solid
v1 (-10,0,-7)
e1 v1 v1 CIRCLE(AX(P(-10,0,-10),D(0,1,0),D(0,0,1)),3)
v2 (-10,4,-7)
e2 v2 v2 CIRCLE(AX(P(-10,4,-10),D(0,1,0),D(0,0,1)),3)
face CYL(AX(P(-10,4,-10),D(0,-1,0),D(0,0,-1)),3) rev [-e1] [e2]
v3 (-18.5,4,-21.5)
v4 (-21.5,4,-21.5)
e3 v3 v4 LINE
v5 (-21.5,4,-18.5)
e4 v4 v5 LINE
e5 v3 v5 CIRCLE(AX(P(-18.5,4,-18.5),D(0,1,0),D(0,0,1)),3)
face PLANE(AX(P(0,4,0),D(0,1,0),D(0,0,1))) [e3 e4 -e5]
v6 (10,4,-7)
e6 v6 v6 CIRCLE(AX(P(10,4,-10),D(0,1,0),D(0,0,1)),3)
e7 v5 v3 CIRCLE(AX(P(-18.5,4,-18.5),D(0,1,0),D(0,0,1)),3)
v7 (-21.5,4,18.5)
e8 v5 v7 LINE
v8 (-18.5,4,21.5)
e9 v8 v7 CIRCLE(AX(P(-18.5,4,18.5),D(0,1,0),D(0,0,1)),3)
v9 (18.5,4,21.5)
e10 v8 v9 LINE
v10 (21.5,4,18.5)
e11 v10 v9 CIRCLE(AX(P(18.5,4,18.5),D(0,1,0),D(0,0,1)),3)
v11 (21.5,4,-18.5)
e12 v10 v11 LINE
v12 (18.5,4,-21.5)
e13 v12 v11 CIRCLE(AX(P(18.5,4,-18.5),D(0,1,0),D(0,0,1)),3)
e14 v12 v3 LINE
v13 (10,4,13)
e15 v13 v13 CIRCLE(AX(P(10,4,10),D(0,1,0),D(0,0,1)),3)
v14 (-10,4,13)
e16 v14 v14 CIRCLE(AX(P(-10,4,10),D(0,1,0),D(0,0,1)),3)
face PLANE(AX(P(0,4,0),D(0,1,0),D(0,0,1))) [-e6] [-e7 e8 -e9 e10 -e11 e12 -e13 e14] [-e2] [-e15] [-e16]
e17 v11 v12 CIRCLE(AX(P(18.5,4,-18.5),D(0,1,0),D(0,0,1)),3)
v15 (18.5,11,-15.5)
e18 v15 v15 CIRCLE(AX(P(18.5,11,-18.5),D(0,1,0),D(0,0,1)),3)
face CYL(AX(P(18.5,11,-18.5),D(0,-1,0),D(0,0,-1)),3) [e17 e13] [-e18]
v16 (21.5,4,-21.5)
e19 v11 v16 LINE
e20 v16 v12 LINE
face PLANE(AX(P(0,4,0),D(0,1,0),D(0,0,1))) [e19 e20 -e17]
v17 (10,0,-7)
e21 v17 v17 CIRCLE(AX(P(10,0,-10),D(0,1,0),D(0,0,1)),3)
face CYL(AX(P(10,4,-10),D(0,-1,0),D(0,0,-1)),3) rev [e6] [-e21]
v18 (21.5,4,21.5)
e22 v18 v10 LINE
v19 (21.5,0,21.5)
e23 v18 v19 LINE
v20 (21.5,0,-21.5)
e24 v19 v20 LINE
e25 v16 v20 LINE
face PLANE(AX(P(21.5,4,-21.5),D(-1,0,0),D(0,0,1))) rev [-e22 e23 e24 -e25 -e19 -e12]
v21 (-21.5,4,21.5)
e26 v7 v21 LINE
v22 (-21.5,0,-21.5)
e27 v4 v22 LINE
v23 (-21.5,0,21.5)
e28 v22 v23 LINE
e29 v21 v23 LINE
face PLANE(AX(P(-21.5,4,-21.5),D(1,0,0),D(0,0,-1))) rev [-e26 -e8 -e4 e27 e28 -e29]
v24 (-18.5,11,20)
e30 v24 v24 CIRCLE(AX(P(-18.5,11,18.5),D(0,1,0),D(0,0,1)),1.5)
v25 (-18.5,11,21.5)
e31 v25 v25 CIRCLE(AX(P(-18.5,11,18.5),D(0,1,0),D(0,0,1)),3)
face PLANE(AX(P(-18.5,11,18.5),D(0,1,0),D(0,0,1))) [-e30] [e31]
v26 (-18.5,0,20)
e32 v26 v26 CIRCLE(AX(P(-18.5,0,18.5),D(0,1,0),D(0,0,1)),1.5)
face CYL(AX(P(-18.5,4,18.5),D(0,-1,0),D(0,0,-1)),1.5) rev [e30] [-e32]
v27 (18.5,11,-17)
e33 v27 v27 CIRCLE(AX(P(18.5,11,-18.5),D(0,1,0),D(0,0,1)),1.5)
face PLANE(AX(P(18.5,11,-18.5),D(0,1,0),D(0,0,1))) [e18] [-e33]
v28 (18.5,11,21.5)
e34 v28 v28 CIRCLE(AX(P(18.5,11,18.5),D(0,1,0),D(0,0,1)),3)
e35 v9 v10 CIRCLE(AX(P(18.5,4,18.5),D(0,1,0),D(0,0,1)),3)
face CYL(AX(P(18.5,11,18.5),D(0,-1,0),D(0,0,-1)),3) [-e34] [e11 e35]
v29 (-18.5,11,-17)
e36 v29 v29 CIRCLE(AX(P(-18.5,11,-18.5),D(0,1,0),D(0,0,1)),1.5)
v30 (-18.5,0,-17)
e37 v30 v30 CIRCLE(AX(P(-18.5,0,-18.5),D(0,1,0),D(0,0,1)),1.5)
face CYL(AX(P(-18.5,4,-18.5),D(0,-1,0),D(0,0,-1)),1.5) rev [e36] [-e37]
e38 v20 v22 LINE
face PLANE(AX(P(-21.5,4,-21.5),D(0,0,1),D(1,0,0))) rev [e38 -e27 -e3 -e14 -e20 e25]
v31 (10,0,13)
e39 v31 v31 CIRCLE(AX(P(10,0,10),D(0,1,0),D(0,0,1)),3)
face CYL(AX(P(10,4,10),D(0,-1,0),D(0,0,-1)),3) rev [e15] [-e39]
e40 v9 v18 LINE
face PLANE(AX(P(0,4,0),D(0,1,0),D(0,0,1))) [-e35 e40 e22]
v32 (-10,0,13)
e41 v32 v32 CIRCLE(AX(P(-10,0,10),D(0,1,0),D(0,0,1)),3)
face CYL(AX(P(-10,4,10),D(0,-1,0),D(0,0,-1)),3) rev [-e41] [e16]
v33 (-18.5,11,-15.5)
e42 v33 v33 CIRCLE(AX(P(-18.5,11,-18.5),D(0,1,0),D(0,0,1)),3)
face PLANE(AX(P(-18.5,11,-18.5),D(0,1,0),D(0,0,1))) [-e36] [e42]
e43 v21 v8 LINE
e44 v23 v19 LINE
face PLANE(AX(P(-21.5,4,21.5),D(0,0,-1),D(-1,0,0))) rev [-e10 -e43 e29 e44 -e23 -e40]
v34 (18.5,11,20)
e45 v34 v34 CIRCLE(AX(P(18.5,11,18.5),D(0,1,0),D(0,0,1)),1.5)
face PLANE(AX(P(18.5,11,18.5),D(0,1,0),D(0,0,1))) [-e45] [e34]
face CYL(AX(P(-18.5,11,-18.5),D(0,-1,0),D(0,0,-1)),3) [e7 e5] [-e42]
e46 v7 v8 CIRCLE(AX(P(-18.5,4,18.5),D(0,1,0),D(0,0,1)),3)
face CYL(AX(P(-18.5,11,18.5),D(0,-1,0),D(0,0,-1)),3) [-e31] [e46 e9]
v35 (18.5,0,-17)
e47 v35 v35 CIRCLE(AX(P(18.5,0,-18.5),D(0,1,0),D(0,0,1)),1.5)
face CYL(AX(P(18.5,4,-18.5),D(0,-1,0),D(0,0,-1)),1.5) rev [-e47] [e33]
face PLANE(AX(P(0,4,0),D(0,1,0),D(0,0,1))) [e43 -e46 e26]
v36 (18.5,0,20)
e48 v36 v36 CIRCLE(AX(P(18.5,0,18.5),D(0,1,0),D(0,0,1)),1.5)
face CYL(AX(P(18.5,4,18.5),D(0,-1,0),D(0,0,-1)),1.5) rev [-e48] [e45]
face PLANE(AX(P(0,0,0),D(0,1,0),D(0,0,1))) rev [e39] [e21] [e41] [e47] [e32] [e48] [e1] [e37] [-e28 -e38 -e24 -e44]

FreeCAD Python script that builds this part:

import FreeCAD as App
import Part
import Sketcher
from FreeCAD import Vector
Q = App.Units.Quantity


def add_polygon(sketch, points):
    """Adds a closed chain of lines whose ends are joined by coincident constraints."""
    first, n = sketch.GeometryCount, len(points)
    for a, b in zip(points, points[1:] + points[:1]):
        sketch.addGeometry(Part.LineSegment(App.Vector(*a, 0), App.Vector(*b, 0)), False)
    for i in range(n):
        sketch.addConstraint(Sketcher.Constraint("Coincident", first + i, 2, first + (i + 1) % n, 1))

doc = App.newDocument("Part")
body = doc.addObject("PartDesign::Body", "Body")

# Sketch on XZ plane
sketch1 = body.newObject("Sketcher::SketchObject", "Sketch")
sketch1.AttachmentSupport = (doc.getObject("XZ_Plane"), [""])
sketch1.MapMode = "FlatFace"
add_polygon(sketch1, [(-21.5, -21.5), (-21.5, 21.5), (21.5, 21.5), (21.5, -21.5)])  # lines 0-3
sketch1.addGeometry(Part.Circle(Vector(-18.5, 18.5, 0), Vector(0, 0, 1), 1.5), False)  # 4
sketch1.addGeometry(Part.Circle(Vector(-10, 10, 0), Vector(0, 0, 1), 3), False)  # 5
sketch1.addGeometry(Part.Circle(Vector(18.5, 18.5, 0), Vector(0, 0, 1), 1.5), False)  # 6
sketch1.addGeometry(Part.Circle(Vector(10, 10, 0), Vector(0, 0, 1), 3), False)  # 7
sketch1.addGeometry(Part.Circle(Vector(-18.5, -18.5, 0), Vector(0, 0, 1), 1.5), False)  # 8
sketch1.addGeometry(Part.Circle(Vector(-10, -10, 0), Vector(0, 0, 1), 3), False)  # 9
sketch1.addGeometry(Part.Circle(Vector(10, -10, 0), Vector(0, 0, 1), 3), False)  # 10
sketch1.addGeometry(Part.Circle(Vector(18.5, -18.5, 0), Vector(0, 0, 1), 1.5), False)  # 11
sketch1.addConstraint([
    Sketcher.Constraint("Vertical", 0),
    Sketcher.Constraint("Horizontal", 1),
    Sketcher.Constraint("Vertical", 2),
    Sketcher.Constraint("Horizontal", 3),
    Sketcher.Constraint("Equal", 4, 6),
    Sketcher.Constraint("Equal", 5, 7),
    Sketcher.Constraint("Equal", 6, 8),
    Sketcher.Constraint("Equal", 7, 9),
    Sketcher.Constraint("Equal", 9, 10),
    Sketcher.Constraint("Equal", 8, 11),
    Sketcher.Constraint("Symmetric", 6, 3, 8, 3, -1, 1),
    Sketcher.Constraint("Symmetric", 7, 3, 9, 3, -1, 1),
    Sketcher.Constraint("Symmetric", 5, 3, 10, 3, -1, 1),
    Sketcher.Constraint("Symmetric", 4, 3, 11, 3, -1, 1),
    Sketcher.Constraint("Symmetric", 0, 2, 2, 2, -1, 1),
    Sketcher.Constraint("Symmetric", 4, 3, 6, 3, -2),
    Sketcher.Constraint("Symmetric", 5, 3, 7, 3, -2),
    Sketcher.Constraint("Equal", 3, 0),
    Sketcher.Constraint("Diameter", 4, Q("3 mm")),
    Sketcher.Constraint("Diameter", 5, Q("6 mm")),
    Sketcher.Constraint("DistanceX", 1, 1, 1, 2, Q("43 mm")),
    Sketcher.Constraint("DistanceX", 5, 3, -1, 1, Q("10 mm")),
    Sketcher.Constraint("DistanceY", -1, 1, 5, 3, Q("10 mm")),
    Sketcher.Constraint("DistanceX", 4, 3, 6, 3, Q("37 mm")),
    Sketcher.Constraint("DistanceY", 8, 3, 4, 3, Q("37 mm")),
])
pad1 = body.newObject("PartDesign::Pad", "Pad")
pad1.Profile = sketch1
pad1.Length = 4
pad1.Reversed = True

# Sketch on XZ plane
sketch2 = body.newObject("Sketcher::SketchObject", "Sketch001")
sketch2.AttachmentSupport = (doc.getObject("XZ_Plane"), [""])
sketch2.MapMode = "FlatFace"
sketch2.AttachmentOffset = App.Placement(Vector(0, 0, -4), App.Rotation())
sketch2.addGeometry([
    Part.Circle(Vector(-18.5, 18.5, 0), Vector(0, 0, 1), 3),  # 0
    Part.Circle(Vector(-18.5, 18.5, 0), Vector(0, 0, 1), 1.5),  # 1
    Part.Circle(Vector(18.5, 18.5, 0), Vector(0, 0, 1), 3),  # 2
    Part.Circle(Vector(18.5, 18.5, 0), Vector(0, 0, 1), 1.5),  # 3
    Part.Circle(Vector(18.5, -18.5, 0), Vector(0, 0, 1), 3),  # 4
    Part.Circle(Vector(18.5, -18.5, 0), Vector(0, 0, 1), 1.5),  # 5
    Part.Circle(Vector(-18.5, -18.5, 0), Vector(0, 0, 1), 3),  # 6
    Part.Circle(Vector(-18.5, -18.5, 0), Vector(0, 0, 1), 1.5),  # 7
], False)
sketch2.addConstraint([
    Sketcher.Constraint("Coincident", 1, 3, 0, 3),
    Sketcher.Constraint("Coincident", 3, 3, 2, 3),
    Sketcher.Constraint("Coincident", 5, 3, 4, 3),
    Sketcher.Constraint("Coincident", 7, 3, 6, 3),
    Sketcher.Constraint("Equal", 0, 2),
    Sketcher.Constraint("Equal", 1, 3),
    Sketcher.Constraint("Equal", 2, 4),
    Sketcher.Constraint("Equal", 3, 5),
    Sketcher.Constraint("Equal", 4, 6),
    Sketcher.Constraint("Equal", 5, 7),
    Sketcher.Constraint("Symmetric", 0, 3, 4, 3, -1, 1),
    Sketcher.Constraint("Symmetric", 2, 3, 6, 3, -1, 1),
    Sketcher.Constraint("Symmetric", 0, 3, 2, 3, -2),
    Sketcher.Constraint("Diameter", 0, Q("6 mm")),
    Sketcher.Constraint("Diameter", 1, Q("3 mm")),
    Sketcher.Constraint("DistanceX", 0, 3, 2, 3, Q("37 mm")),
    Sketcher.Constraint("DistanceY", 4, 3, 2, 3, Q("37 mm")),
])
pad2 = body.newObject("PartDesign::Pad", "Pad001")
pad2.Profile = sketch2
pad2.Length = 7
pad2.Reversed = True

doc.recompute()
